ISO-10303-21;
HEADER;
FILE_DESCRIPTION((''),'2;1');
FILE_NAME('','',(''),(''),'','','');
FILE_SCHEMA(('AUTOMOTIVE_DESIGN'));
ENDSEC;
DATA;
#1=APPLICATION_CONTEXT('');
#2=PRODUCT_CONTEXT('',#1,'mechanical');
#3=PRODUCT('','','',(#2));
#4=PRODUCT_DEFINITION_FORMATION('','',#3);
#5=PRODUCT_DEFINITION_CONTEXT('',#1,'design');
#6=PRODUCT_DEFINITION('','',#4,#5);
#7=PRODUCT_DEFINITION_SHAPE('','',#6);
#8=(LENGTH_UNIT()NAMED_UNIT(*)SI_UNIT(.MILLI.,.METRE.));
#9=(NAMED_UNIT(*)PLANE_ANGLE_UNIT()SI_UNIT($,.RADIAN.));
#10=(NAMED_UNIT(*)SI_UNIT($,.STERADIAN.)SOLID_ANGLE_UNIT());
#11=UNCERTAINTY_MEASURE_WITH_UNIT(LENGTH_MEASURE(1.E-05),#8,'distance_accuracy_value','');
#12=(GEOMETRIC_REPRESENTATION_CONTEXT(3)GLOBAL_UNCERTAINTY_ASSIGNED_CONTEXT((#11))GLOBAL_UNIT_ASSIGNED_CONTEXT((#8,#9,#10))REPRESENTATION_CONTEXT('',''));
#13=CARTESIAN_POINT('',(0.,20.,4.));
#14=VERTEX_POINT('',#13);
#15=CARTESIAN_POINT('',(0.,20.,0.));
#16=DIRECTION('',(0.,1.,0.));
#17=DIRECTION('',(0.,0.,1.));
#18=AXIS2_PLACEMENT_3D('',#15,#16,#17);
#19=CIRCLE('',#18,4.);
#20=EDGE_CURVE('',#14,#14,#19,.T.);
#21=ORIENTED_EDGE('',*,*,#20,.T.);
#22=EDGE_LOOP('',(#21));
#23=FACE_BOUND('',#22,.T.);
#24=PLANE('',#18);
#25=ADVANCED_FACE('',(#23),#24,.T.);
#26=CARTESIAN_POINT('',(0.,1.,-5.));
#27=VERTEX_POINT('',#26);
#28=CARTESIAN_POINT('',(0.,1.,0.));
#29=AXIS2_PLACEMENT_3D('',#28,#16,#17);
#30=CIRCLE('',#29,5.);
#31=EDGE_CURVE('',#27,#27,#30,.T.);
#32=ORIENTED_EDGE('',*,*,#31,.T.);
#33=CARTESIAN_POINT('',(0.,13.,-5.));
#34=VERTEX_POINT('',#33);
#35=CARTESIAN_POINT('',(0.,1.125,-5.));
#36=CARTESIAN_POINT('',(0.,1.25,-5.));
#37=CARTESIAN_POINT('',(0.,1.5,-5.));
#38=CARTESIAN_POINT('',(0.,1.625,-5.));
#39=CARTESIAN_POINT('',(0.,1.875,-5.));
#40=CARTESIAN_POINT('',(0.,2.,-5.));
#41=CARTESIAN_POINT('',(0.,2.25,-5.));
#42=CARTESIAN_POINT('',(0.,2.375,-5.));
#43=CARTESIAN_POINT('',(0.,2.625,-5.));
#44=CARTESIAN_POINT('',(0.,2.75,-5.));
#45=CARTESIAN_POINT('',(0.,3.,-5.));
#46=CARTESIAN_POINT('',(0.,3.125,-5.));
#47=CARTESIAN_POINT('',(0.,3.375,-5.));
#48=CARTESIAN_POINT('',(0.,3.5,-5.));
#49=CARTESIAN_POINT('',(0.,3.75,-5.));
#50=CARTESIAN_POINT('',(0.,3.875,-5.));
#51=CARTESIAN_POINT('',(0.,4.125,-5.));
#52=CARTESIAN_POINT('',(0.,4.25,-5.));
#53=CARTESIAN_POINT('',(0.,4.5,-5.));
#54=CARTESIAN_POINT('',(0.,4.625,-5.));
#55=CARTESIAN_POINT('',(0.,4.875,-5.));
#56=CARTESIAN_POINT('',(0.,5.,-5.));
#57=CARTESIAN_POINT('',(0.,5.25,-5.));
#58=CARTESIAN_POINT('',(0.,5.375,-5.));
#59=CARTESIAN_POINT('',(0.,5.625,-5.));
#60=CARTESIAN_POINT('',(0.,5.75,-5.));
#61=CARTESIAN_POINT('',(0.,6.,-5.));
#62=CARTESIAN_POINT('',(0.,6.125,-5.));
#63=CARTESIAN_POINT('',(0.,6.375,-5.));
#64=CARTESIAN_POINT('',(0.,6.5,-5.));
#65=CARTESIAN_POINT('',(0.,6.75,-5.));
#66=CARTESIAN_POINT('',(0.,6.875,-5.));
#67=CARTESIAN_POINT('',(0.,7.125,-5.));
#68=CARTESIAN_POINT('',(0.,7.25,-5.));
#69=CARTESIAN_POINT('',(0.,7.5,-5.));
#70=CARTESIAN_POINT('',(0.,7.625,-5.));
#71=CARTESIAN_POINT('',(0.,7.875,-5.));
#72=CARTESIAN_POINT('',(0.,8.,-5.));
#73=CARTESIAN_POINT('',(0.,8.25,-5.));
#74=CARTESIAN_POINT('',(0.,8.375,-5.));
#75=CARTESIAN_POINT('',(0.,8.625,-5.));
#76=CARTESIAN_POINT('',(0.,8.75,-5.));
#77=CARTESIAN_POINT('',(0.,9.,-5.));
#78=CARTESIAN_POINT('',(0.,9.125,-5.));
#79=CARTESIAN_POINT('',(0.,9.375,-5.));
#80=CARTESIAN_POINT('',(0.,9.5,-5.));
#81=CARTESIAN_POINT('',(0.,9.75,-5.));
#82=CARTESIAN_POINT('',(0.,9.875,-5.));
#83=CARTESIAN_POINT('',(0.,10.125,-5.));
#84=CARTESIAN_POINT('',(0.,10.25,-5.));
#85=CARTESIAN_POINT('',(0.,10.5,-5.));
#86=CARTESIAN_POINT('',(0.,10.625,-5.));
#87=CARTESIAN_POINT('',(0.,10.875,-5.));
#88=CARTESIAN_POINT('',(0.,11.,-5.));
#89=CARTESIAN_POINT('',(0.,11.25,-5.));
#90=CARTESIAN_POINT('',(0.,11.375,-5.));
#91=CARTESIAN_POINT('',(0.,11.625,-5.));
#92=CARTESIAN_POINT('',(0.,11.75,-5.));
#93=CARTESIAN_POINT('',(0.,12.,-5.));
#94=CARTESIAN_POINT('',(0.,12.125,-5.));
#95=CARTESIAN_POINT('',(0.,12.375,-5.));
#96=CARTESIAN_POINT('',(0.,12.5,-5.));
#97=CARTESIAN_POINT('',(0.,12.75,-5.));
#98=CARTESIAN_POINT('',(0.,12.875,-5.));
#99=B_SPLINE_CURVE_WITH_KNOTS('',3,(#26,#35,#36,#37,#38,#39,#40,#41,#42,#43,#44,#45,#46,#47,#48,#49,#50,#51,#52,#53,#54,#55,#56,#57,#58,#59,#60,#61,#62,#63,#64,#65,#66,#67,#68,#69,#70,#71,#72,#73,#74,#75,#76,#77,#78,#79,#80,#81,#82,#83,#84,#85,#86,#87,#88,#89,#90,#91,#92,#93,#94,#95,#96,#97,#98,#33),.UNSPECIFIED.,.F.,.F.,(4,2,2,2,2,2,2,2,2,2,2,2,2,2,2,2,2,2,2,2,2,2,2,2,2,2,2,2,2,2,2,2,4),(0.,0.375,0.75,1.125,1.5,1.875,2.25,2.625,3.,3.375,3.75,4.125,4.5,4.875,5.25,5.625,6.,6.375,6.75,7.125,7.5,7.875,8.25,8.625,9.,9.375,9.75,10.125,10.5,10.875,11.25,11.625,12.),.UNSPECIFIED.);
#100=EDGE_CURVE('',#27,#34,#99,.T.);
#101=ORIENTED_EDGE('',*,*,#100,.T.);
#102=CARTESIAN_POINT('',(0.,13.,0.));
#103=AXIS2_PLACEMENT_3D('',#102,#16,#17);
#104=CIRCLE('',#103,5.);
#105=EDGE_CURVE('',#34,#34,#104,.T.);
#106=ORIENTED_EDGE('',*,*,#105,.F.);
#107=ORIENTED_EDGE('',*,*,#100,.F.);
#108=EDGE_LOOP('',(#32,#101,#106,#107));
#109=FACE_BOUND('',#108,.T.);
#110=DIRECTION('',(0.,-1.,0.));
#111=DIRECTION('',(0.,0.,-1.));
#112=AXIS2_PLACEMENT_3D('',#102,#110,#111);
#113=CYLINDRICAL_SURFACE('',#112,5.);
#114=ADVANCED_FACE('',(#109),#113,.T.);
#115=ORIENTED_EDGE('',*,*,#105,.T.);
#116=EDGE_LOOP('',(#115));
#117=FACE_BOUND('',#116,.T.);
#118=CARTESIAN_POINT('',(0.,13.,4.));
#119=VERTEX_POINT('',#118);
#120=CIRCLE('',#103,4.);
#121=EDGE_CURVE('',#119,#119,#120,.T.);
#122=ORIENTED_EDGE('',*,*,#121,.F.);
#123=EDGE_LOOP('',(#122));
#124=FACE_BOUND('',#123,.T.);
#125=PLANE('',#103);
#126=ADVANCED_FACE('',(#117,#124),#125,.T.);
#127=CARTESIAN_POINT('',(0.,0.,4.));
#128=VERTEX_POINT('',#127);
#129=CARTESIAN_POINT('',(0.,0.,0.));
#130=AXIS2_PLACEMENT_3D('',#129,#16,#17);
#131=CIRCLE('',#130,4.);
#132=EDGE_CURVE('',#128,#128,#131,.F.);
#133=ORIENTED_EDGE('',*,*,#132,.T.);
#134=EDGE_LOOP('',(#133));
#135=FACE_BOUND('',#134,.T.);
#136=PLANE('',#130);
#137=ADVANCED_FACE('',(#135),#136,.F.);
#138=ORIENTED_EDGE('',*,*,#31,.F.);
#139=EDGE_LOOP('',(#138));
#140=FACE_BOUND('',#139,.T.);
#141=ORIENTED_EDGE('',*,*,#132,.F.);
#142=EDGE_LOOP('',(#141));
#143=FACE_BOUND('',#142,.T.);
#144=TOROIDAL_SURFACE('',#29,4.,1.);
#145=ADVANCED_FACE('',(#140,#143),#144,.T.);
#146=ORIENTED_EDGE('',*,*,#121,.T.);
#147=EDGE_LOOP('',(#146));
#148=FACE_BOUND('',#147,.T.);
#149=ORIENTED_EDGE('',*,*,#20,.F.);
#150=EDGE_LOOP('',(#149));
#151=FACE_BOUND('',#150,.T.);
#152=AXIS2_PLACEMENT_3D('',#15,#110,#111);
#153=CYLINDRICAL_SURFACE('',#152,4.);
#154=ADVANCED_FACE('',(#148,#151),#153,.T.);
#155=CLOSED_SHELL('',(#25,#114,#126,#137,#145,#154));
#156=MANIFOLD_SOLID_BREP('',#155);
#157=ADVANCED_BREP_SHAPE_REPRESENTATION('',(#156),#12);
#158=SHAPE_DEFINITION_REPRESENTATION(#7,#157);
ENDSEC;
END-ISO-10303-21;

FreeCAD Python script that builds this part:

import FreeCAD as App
import Part
import Sketcher

V = App.Vector


def edges_at(feature, points):
    """Names of the edges that pass closest to the given points."""
    edges = feature.Shape.Edges
    near = lambda p: min(range(len(edges)), key=lambda i: edges[i].distToShape(Part.Vertex(*p))[0])
    return sorted({f"Edge{near(p) + 1}" for p in points})

doc = App.newDocument("Part")
params = doc.addObject("Spreadsheet::Sheet", "Params")
for row, (alias, value) in enumerate([
    ("sketch1_diameter", "10 mm"),
    ("pad1_length", "13 mm"),
    ("fillet_radius", "1 mm"),
    ("sketch2_diameter", "8 mm"),
    ("pad2_length", "7 mm"),
], start=1):
    params.set(f"A{row}", alias)
    params.set(f"B{row}", "=" + value)
    params.setAlias(f"B{row}", alias)

body = doc.addObject("PartDesign::Body", "Body")

# Sketch on XZ plane
sketch1 = doc.addObject("Sketcher::SketchObject", "Sketch")
body.addObject(sketch1)
sketch1.AttachmentSupport = (doc.XZ_Plane, [""])
sketch1.MapMode = "FlatFace"
sketch1.addGeometry(Part.Circle(V(0, 0, 0), V(0, 0, 1), 5), False)
sketch1.addConstraint([
    Sketcher.Constraint("Coincident", 0, 3, -1, 1),
    Sketcher.Constraint("Diameter", 0, 10.0),
])
sketch1.setExpression("Constraints[1]", "Params.sketch1_diameter")
pad1 = doc.addObject("PartDesign::Pad", "Pad")
body.addObject(pad1)
pad1.Profile = sketch1
pad1.setExpression("Length", "Params.pad1_length")
pad1.Reversed = True
doc.recompute()

fillet = doc.addObject("PartDesign::Fillet", "Fillet")
body.addObject(fillet)
fillet.Base = (pad1, edges_at(pad1, [(0, 0, 5)]))
fillet.setExpression("Radius", "Params.fillet_radius")

# Sketch on XZ plane
sketch2 = doc.addObject("Sketcher::SketchObject", "Sketch001")
body.addObject(sketch2)
sketch2.AttachmentSupport = (doc.XZ_Plane, [""])
sketch2.MapMode = "FlatFace"
sketch2.AttachmentOffset = App.Placement(V(0, 0, -13), App.Rotation())
sketch2.addGeometry(Part.Circle(V(0, 0, 0), V(0, 0, 1), 4), False)
sketch2.addConstraint([
    Sketcher.Constraint("Coincident", 0, 3, -1, 1),
    Sketcher.Constraint("Diameter", 0, 8.0),
])
sketch2.setExpression("Constraints[1]", "Params.sketch2_diameter")
pad2 = doc.addObject("PartDesign::Pad", "Pad001")
body.addObject(pad2)
pad2.Profile = sketch2
pad2.setExpression("Length", "Params.pad2_length")
pad2.Reversed = True

doc.recompute()
